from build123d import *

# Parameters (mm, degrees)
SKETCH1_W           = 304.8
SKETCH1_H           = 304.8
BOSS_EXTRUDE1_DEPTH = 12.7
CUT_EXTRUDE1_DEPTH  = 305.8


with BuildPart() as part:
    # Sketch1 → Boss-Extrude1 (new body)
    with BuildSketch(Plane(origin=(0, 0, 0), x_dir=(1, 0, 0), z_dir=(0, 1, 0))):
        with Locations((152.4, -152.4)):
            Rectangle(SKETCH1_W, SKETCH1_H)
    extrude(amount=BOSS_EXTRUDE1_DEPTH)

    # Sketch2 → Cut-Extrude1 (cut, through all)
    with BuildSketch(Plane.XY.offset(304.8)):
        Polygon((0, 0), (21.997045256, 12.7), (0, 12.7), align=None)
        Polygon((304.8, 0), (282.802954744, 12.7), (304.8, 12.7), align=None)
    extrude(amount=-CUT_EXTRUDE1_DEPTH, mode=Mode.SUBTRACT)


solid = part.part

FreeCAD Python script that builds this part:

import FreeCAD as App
import Part
import Sketcher
from FreeCAD import Vector
Q = App.Units.Quantity

doc = App.newDocument("Part")
body = doc.addObject("PartDesign::Body", "Body")

sketch1 = body.newObject("Sketcher::SketchObject", "Sketch")
sketch1.AttachmentSupport = (doc.getObject("XZ_Plane"), [""])
sketch1.MapMode = "FlatFace"
sketch1.addGeometry([
    Part.LineSegment(Vector(0, 0, 0), Vector(0, 305, 0)),
    Part.LineSegment(Vector(0, 305, 0), Vector(305, 305, 0)),
    Part.LineSegment(Vector(305, 305, 0), Vector(305, 0, 0)),
    Part.LineSegment(Vector(305, 0, 0), Vector(0, 0, 0)),
], False)
sketch1.addConstraint([
    Sketcher.Constraint("Coincident", 0, 2, 1, 1),
    Sketcher.Constraint("Coincident", 1, 2, 2, 1),
    Sketcher.Constraint("Coincident", 2, 2, 3, 1),
    Sketcher.Constraint("Coincident", 3, 2, 0, 1),
    Sketcher.Constraint("Vertical", 0),
    Sketcher.Constraint("Horizontal", 1),
    Sketcher.Constraint("Vertical", 2),
    Sketcher.Constraint("Horizontal", 3),
    Sketcher.Constraint("Coincident", 3, 2, -1, 1),
    Sketcher.Constraint("Equal", 3, 0),
    Sketcher.Constraint("DistanceX", 1, 1, 1, 2, Q("12 in")),
])
pad1 = body.newObject("PartDesign::Pad", "Pad")
pad1.Profile = sketch1
pad1.Length = Q("0.5 in")
pad1.Reversed = True

sketch2 = body.newObject("Sketcher::SketchObject", "Sketch001")
sketch2.AttachmentSupport = (doc.getObject("XY_Plane"), [""])
sketch2.MapMode = "FlatFace"
sketch2.AttachmentOffset = App.Placement(Vector(0, 0, 12 * 25.4), App.Rotation())
sketch2.addGeometry([
    Part.LineSegment(Vector(0, 0, 0), Vector(22, 13, 0)),
    Part.LineSegment(Vector(22, 13, 0), Vector(0, 13, 0)),
    Part.LineSegment(Vector(0, 13, 0), Vector(0, 0, 0)),
    Part.LineSegment(Vector(283, 13, 0), Vector(305, 0, 0)),
    Part.LineSegment(Vector(305, 0, 0), Vector(305, 13, 0)),
    Part.LineSegment(Vector(305, 13, 0), Vector(283, 13, 0)),
], False)
sketch2.addConstraint([
    Sketcher.Constraint("Coincident", 0, 2, 1, 1),
    Sketcher.Constraint("Coincident", 1, 2, 2, 1),
    Sketcher.Constraint("Coincident", 2, 2, 0, 1),
    Sketcher.Constraint("Coincident", 3, 2, 4, 1),
    Sketcher.Constraint("Coincident", 4, 2, 5, 1),
    Sketcher.Constraint("Coincident", 5, 2, 3, 1),
    Sketcher.Constraint("Horizontal", 1),
    Sketcher.Constraint("Vertical", 2),
    Sketcher.Constraint("Vertical", 4),
    Sketcher.Constraint("Horizontal", 5),
    Sketcher.Constraint("Coincident", 2, 2, -1, 1),
    Sketcher.Constraint("PointOnObject", 3, 2, -1),
    Sketcher.Constraint("Horizontal", 1, 2, 4, 2),
    Sketcher.Constraint("Equal", 1, 5),
    Sketcher.Constraint("Distance", 0, Q("1 in")),
    Sketcher.Constraint("DistanceY", 2, 2, 2, 1, Q("0.5 in")),
    Sketcher.Constraint("DistanceX", -1, 1, 3, 2, Q("12 in")),
])
pocket1 = body.newObject("PartDesign::Pocket", "Pocket")
pocket1.Profile = sketch2
pocket1.Type = "ThroughAll"

doc.recompute()
